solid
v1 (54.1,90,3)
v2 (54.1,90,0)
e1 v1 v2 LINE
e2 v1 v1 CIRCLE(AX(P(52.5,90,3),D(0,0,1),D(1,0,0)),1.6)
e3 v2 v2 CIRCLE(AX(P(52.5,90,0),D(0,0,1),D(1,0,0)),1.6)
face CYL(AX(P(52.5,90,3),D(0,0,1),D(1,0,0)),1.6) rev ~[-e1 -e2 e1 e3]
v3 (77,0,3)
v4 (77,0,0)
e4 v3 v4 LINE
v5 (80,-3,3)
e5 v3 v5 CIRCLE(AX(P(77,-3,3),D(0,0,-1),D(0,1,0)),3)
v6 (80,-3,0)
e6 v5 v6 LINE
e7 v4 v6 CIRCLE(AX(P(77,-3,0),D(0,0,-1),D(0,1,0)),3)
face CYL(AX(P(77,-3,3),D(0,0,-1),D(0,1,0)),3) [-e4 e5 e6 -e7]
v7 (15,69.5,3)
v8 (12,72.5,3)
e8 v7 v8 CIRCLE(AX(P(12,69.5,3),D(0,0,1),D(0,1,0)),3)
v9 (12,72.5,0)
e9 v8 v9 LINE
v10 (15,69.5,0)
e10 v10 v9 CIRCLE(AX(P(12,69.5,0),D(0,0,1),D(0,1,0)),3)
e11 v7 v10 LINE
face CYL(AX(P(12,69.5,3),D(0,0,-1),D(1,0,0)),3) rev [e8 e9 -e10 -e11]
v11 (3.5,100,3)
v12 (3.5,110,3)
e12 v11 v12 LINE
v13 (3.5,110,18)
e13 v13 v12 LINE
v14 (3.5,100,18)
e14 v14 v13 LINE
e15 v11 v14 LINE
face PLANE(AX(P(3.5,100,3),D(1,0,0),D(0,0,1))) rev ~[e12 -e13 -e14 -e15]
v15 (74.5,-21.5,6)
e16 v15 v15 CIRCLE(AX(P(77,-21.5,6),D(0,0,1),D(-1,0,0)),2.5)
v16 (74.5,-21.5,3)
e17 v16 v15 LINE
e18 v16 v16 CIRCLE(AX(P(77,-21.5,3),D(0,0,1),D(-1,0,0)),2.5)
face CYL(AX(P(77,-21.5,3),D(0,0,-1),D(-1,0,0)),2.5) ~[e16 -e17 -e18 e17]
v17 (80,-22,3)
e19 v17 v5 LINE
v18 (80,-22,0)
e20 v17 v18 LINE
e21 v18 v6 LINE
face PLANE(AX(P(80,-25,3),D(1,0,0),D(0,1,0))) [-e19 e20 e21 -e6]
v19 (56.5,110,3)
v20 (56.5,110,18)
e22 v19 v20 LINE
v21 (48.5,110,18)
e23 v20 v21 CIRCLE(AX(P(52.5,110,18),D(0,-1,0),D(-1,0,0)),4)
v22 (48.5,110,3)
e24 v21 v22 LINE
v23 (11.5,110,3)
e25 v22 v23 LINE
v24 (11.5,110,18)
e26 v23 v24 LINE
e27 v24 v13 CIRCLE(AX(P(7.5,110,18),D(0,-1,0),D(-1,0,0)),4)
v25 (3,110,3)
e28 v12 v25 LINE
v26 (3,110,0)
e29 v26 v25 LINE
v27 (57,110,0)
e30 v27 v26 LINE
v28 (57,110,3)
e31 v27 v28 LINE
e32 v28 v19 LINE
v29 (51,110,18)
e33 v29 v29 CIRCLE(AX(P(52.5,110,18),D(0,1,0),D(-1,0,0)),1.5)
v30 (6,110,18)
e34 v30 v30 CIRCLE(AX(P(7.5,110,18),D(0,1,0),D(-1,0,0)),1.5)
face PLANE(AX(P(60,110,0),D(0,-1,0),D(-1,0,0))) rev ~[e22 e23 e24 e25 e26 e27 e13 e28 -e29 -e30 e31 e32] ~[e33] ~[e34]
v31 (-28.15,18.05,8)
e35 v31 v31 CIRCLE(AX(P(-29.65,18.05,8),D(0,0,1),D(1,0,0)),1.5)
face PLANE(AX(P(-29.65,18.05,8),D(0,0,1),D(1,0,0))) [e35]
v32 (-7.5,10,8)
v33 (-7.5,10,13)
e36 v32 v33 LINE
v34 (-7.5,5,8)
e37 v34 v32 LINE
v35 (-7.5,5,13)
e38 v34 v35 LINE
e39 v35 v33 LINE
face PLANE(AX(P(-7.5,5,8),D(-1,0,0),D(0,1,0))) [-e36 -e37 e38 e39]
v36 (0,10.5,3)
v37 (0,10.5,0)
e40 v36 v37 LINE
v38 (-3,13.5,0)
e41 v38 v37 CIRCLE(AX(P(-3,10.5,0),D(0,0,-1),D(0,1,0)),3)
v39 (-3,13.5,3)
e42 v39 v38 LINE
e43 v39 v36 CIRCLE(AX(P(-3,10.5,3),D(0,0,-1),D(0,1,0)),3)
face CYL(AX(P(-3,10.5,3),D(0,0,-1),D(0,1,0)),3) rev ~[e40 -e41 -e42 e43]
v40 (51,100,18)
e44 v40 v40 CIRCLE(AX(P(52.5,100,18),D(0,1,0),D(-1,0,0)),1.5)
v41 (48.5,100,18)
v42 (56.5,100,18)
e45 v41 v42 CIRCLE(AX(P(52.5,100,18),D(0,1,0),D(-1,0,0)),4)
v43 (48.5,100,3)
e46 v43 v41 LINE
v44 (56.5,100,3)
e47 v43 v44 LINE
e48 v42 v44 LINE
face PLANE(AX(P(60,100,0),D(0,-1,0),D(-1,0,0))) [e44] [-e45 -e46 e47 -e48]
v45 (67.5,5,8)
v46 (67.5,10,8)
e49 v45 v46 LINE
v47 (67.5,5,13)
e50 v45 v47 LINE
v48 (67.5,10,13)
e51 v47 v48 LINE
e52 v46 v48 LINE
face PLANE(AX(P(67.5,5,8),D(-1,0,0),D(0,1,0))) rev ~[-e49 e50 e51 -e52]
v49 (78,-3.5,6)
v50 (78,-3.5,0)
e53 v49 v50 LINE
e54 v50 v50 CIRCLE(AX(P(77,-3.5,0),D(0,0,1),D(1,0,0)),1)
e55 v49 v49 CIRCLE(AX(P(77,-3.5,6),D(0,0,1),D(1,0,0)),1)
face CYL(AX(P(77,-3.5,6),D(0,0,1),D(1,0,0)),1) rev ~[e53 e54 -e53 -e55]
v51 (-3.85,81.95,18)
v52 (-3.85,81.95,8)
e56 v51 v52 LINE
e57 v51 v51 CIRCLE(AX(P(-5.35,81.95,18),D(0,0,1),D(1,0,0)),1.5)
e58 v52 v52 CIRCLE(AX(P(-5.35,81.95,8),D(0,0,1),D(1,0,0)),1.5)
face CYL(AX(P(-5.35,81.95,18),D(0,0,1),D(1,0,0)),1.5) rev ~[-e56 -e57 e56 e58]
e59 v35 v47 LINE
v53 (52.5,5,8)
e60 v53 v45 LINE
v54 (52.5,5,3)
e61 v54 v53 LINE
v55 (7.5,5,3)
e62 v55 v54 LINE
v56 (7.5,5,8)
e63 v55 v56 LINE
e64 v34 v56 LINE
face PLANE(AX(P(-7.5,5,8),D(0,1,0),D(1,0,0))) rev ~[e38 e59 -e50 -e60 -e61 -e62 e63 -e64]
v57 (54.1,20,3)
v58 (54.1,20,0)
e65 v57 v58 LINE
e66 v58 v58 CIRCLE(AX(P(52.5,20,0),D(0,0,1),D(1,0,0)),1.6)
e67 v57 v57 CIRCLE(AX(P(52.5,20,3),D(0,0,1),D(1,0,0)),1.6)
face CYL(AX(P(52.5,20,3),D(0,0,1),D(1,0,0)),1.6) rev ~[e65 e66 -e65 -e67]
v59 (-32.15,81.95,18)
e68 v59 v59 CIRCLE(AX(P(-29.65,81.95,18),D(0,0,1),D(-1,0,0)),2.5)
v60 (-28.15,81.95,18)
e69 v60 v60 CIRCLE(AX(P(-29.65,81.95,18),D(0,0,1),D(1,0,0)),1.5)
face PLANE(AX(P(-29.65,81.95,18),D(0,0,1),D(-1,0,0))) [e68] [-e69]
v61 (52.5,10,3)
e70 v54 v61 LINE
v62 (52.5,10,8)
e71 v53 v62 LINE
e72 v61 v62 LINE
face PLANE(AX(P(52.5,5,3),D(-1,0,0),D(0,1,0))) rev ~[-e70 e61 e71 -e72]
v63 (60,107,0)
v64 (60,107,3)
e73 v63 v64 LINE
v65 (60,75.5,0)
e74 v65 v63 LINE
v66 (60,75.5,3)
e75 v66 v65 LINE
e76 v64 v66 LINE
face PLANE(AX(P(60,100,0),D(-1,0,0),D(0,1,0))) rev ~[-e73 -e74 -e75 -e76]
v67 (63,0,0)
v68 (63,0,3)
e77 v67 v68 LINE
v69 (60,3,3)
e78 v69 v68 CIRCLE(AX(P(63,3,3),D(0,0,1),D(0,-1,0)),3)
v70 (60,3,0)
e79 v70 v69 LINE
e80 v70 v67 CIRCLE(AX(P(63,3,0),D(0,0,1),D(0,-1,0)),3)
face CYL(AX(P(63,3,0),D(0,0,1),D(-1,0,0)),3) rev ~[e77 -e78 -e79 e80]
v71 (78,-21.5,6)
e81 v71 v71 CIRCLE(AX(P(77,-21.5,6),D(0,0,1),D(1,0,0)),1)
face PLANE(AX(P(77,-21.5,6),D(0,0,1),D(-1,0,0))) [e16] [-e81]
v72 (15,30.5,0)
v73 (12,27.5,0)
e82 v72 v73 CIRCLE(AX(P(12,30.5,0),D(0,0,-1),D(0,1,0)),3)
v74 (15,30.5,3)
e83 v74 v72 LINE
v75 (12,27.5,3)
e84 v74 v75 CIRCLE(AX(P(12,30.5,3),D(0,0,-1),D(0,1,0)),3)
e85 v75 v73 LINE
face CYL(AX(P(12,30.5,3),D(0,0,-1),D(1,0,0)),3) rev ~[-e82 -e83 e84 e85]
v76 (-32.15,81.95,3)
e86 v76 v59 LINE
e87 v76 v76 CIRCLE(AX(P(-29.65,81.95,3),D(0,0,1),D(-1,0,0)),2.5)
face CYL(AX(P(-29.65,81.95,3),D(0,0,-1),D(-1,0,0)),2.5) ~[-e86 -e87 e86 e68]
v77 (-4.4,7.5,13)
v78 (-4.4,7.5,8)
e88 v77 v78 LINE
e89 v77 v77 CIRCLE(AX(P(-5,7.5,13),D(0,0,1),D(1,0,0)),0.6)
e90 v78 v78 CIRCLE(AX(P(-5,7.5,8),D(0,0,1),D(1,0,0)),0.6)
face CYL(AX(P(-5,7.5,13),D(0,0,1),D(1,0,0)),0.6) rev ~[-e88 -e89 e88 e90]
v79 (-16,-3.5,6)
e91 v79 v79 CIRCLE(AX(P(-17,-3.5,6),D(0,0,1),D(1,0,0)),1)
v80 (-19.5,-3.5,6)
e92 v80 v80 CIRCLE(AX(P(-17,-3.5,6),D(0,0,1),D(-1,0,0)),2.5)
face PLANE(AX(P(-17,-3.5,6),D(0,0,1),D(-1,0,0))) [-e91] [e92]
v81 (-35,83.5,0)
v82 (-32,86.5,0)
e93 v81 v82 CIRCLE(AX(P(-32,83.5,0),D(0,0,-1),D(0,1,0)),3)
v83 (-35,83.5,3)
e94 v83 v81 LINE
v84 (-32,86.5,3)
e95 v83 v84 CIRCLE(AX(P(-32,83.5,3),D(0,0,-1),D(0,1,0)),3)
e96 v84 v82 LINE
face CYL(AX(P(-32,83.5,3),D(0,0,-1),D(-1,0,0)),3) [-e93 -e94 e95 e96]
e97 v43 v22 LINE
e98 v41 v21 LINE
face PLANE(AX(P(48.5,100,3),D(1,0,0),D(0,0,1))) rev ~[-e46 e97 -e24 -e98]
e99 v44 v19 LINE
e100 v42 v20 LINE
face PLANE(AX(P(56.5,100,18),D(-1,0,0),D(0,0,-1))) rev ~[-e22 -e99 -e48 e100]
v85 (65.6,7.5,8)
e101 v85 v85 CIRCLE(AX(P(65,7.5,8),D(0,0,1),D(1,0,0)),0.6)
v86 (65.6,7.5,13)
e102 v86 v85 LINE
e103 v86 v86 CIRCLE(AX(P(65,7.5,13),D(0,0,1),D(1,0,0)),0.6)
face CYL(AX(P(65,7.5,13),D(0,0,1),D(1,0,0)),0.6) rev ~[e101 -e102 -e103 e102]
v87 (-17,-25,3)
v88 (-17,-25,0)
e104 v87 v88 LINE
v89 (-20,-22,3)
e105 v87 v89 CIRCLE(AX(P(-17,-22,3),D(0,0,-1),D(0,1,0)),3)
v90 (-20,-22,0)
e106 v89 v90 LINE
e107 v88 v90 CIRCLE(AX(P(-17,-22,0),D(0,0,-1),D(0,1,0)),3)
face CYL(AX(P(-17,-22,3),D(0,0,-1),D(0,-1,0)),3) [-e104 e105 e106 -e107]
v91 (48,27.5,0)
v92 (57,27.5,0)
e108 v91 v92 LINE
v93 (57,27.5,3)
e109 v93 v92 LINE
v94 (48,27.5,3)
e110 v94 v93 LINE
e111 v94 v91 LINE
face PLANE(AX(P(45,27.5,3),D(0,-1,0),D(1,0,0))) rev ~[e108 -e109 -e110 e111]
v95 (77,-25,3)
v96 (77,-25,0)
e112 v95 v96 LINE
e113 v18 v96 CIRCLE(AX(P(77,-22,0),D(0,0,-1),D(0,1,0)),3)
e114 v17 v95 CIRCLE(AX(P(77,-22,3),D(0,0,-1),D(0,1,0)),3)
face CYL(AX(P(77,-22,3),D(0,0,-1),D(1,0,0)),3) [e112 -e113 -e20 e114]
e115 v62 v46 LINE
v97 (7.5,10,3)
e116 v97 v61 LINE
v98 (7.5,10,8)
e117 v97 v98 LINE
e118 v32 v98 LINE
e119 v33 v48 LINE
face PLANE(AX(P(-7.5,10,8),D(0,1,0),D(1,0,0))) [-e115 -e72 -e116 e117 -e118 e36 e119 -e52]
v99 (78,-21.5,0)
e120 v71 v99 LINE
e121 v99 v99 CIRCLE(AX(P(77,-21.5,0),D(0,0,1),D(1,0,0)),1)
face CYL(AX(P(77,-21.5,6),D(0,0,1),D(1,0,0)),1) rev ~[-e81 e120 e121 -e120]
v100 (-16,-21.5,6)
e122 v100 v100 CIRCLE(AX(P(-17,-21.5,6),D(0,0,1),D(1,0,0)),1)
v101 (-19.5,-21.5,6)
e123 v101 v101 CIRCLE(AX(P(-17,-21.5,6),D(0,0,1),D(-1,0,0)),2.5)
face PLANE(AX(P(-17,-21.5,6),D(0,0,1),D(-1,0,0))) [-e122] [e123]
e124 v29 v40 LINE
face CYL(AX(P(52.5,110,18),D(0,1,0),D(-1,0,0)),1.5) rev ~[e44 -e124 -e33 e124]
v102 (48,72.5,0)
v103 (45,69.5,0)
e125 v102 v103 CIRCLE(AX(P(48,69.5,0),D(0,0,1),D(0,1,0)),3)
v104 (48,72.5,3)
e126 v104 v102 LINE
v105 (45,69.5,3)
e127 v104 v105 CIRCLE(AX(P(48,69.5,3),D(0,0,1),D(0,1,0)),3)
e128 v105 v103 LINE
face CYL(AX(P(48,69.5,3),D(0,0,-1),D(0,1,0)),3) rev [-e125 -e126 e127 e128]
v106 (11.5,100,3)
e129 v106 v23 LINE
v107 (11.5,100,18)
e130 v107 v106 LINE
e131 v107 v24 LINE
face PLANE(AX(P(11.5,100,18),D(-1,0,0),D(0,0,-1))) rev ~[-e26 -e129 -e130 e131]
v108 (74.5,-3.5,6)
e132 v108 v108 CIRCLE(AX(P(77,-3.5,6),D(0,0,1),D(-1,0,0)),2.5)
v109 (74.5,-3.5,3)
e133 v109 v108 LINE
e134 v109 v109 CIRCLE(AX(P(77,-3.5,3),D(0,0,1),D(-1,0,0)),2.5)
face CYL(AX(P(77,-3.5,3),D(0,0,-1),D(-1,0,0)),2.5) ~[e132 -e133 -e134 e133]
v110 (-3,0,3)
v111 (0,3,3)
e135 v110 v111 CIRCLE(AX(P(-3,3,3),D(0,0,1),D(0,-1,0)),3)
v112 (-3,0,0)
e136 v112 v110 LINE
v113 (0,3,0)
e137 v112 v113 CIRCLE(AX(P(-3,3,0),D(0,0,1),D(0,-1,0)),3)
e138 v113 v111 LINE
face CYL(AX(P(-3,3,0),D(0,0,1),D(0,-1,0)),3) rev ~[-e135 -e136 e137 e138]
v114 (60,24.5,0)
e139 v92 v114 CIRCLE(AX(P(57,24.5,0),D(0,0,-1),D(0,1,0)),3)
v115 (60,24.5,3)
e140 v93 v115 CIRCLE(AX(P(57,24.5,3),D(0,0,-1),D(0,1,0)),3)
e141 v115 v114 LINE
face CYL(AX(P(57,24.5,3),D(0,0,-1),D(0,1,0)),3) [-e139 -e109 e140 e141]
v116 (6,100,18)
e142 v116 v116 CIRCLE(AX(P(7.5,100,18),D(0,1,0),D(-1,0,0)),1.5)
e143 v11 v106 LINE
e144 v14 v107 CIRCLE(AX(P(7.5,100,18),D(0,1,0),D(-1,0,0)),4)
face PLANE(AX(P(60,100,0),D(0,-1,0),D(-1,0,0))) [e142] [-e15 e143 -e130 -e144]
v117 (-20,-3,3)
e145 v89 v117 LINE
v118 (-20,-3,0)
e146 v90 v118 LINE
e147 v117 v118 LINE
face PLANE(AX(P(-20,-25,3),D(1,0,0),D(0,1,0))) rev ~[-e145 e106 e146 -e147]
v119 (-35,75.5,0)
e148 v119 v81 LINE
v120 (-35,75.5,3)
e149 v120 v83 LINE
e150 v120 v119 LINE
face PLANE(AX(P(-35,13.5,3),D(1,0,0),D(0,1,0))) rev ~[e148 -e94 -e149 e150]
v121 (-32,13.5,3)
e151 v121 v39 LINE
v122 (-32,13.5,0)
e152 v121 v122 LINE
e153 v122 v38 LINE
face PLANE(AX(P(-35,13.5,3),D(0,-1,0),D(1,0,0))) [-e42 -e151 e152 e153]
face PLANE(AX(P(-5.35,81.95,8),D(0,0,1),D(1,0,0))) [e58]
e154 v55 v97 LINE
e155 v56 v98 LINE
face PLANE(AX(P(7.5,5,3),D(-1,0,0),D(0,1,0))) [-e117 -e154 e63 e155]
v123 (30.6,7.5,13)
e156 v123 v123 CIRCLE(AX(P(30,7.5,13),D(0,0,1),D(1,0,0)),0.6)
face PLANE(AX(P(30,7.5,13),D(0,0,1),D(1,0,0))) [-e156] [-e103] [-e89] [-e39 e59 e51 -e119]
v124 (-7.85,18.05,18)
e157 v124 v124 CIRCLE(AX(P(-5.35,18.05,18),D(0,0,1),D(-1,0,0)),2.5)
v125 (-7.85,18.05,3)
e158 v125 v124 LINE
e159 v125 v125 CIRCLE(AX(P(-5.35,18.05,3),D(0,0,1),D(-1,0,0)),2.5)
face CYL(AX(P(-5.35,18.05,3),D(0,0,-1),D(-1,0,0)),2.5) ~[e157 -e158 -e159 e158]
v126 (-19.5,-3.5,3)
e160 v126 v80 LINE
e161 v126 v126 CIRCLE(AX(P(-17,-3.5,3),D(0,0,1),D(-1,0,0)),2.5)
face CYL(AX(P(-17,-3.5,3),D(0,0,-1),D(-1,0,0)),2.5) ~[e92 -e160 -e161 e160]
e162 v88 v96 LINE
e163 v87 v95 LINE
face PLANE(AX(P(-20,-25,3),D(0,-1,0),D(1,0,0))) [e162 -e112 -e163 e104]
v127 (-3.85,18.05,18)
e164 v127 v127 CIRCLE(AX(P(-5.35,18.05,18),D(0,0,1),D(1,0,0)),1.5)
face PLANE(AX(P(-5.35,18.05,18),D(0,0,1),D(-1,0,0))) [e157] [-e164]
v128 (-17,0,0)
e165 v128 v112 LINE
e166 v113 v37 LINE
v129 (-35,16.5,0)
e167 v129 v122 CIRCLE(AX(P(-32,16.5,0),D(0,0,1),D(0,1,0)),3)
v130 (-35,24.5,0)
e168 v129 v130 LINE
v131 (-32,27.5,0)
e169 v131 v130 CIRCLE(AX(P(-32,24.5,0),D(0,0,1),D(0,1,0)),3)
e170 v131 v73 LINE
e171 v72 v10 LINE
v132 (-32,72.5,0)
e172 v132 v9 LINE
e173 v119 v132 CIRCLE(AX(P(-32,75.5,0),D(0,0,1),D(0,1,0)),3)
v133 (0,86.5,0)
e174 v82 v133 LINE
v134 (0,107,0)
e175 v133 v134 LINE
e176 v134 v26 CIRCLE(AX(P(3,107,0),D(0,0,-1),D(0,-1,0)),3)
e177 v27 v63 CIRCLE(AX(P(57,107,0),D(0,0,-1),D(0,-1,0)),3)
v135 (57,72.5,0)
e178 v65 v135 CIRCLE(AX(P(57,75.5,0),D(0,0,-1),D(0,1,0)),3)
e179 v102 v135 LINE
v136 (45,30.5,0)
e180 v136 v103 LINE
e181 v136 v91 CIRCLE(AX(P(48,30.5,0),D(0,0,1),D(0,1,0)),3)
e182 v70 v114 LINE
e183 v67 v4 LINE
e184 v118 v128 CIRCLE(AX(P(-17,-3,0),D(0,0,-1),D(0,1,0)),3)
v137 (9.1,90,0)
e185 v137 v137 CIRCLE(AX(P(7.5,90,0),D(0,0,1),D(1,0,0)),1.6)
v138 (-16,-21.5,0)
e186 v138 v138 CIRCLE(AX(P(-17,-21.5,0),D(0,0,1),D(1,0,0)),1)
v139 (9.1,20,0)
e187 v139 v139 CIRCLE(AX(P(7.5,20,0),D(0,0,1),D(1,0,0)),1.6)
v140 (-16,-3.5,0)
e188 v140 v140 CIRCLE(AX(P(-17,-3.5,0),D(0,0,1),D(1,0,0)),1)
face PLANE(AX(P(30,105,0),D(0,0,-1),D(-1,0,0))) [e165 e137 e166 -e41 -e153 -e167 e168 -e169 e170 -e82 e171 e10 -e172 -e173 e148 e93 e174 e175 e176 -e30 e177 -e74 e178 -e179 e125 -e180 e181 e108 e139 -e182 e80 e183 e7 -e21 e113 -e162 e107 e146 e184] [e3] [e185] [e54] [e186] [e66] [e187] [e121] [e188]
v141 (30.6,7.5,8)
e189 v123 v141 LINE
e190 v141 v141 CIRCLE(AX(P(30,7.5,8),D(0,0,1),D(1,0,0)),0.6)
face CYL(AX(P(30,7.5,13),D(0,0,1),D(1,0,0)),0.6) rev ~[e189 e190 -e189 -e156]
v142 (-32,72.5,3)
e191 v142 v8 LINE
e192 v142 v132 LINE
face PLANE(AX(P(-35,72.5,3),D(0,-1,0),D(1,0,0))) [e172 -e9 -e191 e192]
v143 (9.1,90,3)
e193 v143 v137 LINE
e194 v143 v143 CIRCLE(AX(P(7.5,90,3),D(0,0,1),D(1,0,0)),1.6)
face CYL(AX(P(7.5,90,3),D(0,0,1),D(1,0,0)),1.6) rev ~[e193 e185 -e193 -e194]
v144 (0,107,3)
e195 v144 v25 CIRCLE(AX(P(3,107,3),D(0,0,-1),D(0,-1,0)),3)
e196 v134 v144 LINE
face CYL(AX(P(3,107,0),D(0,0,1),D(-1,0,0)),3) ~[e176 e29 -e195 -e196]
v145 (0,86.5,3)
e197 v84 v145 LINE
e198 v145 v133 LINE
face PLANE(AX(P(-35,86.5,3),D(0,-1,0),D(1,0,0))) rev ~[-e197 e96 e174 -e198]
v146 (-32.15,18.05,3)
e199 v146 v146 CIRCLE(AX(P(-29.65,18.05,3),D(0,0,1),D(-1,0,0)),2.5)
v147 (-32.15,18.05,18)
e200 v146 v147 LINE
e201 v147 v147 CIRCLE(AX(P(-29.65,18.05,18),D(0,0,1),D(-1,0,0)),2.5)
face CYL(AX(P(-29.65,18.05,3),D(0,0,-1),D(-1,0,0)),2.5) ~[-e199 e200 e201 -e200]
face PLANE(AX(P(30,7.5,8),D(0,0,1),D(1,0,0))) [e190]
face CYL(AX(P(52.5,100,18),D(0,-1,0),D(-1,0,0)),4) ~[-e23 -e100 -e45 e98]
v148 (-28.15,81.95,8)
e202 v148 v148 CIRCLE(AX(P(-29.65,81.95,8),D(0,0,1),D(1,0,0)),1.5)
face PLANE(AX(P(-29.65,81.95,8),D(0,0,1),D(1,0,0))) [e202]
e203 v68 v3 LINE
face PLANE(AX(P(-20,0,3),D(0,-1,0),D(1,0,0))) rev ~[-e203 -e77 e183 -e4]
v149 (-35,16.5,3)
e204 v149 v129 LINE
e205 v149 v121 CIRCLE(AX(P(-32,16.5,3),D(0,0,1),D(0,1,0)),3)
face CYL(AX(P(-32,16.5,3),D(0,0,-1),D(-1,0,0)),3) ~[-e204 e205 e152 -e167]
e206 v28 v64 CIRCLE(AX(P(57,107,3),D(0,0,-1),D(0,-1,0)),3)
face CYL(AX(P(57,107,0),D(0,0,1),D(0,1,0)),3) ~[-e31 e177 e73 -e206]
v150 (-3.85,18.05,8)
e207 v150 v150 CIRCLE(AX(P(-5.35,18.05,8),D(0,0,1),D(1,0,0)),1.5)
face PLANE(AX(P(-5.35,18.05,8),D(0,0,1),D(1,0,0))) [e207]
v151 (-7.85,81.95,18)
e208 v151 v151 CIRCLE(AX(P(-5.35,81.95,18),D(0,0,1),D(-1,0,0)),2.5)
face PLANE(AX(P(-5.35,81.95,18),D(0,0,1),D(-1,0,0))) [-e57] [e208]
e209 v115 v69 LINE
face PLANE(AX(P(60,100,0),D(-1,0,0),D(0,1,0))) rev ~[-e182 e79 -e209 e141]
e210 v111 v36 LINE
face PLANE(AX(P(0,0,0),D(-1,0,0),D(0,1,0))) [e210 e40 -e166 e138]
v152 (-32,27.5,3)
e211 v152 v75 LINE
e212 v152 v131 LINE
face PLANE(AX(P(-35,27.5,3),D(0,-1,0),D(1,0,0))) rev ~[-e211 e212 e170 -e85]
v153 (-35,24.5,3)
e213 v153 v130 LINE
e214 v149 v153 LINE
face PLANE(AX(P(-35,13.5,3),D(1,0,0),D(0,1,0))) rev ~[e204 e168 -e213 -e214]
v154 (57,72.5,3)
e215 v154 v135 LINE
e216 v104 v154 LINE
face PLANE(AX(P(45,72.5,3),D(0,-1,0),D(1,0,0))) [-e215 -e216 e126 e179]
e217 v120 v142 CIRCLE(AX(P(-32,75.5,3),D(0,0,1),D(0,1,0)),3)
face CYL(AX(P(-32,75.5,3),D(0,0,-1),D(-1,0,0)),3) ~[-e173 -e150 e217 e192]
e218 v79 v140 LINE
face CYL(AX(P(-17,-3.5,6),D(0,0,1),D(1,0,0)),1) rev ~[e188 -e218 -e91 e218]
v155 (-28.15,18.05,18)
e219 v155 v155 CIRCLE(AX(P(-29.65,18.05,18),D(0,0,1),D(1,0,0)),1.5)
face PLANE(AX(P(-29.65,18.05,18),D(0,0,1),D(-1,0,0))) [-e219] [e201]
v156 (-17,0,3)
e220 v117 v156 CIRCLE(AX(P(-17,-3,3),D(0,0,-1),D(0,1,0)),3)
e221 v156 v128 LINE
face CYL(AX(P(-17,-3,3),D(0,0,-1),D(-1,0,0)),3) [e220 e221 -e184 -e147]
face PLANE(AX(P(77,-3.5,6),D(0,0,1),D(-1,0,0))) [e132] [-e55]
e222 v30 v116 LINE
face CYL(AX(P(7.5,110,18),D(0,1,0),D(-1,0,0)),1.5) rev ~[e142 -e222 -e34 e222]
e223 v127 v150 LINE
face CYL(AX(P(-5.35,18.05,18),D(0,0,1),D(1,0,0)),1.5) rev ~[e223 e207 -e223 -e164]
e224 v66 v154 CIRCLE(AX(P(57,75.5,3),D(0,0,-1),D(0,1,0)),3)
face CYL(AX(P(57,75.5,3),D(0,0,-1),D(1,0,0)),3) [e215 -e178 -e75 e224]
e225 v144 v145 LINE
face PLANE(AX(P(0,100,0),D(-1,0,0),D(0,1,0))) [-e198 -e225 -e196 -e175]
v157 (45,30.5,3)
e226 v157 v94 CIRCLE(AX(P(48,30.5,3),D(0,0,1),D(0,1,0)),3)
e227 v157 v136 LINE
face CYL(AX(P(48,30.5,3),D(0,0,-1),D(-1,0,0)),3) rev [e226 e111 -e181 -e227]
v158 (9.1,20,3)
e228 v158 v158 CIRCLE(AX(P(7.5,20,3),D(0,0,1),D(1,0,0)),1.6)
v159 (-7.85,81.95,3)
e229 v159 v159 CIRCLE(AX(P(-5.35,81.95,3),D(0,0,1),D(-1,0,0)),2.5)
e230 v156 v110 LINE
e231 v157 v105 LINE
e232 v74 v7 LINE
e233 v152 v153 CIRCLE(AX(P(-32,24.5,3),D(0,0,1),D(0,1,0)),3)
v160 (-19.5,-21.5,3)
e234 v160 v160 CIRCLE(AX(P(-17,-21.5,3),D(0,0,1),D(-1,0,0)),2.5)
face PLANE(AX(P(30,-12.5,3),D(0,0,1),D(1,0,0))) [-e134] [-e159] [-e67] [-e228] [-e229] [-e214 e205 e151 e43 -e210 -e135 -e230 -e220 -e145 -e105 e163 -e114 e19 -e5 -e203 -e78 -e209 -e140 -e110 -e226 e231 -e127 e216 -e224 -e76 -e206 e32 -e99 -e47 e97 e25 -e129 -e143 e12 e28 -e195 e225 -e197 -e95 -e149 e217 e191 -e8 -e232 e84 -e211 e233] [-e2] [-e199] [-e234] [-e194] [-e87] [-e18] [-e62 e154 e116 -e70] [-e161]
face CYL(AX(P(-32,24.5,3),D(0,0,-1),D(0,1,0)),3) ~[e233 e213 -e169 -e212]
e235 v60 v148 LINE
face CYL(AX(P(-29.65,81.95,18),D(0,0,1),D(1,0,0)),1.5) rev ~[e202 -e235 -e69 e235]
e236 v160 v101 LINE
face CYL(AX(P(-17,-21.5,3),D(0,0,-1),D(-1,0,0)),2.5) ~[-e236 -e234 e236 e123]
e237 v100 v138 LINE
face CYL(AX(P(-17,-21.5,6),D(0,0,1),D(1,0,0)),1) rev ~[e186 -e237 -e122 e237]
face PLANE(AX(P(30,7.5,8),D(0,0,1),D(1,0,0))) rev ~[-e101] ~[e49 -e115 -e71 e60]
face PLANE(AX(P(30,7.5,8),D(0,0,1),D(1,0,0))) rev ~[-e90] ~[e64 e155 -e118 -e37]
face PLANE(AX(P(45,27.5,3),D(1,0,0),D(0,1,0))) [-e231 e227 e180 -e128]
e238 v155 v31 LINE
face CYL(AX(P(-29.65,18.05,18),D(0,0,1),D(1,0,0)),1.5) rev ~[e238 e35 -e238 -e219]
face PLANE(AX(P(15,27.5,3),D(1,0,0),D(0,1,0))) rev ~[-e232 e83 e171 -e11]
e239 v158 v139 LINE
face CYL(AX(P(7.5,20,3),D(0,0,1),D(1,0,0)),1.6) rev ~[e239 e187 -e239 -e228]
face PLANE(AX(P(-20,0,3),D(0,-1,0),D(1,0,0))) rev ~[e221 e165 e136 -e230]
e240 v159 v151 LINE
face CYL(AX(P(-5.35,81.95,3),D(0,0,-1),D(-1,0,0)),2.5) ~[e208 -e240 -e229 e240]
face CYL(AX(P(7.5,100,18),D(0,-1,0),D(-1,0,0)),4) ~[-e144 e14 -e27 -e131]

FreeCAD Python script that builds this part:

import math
import FreeCAD as App
import Part
import Sketcher


def edges_at(feature, points):
    """Names of the edges that pass closest to the given points."""
    edges = feature.Shape.Edges
    near = lambda p: min(range(len(edges)), key=lambda i: edges[i].distToShape(Part.Vertex(*p))[0])
    return sorted({f"Edge{near(p) + 1}" for p in points})


def add_polygon(sketch, points):
    """Adds a closed chain of lines whose ends are joined by coincident constraints."""
    first, n = sketch.GeometryCount, len(points)
    for a, b in zip(points, points[1:] + points[:1]):
        sketch.addGeometry(Part.LineSegment(App.Vector(*a, 0), App.Vector(*b, 0)), False)
    for i in range(n):
        sketch.addConstraint(Sketcher.Constraint("Coincident", first + i, 2, first + (i + 1) % n, 1))

doc = App.newDocument("Part")
params = doc.addObject("Spreadsheet::Sheet", "Params")
for row, (alias, value) in enumerate([
    ("sketch1_width", "60 mm"),
    ("sketch1_height", "100 mm"),
    ("pad1_length", "3 mm"),
    ("sketch2_diameter", "3.2 mm"),
    ("sketch3_diameter", "3.2 mm"),
    ("sketch4_diameter", "3.2 mm"),
    ("sketch5_diameter", "3.2 mm"),
    ("sketch6_width", "100 mm"),
    ("sketch6_height", "25 mm"),
    ("pad2_length", "3 mm"),
    ("sketch7_diameter", "5 mm"),
    ("pad3_length", "3 mm"),
    ("sketch8_diameter", "2 mm"),
    ("sketch9_width", "45 mm"),
    ("sketch9_height", "5 mm"),
    ("pad4_length", "5 mm"),
    ("sketch10_width", "75 mm"),
    ("sketch10_height", "5 mm"),
    ("pad5_length", "5 mm"),
    ("sketch11_diameter", "1.2 mm"),
    ("pocket6_length", "5 mm"),
    ("sketch12_width", "35 mm"),
    ("sketch12_height", "73 mm"),
    ("pad6_length", "3 mm"),
    ("sketch13_diameter", "5 mm"),
    ("pad7_length", "15 mm"),
    ("sketch14_diameter", "3 mm"),
    ("pocket7_length", "10 mm"),
    ("sketch15_width", "60 mm"),
    ("sketch15_height", "10 mm"),
    ("pad8_length", "28 mm"),
    ("sketch16_radius", "4 mm"),
    ("sketch16_width", "37 mm"),
    ("sketch16_width2", "60 mm"),
    ("sketch16_height", "15 mm"),
    ("sketch16_height2", "25 mm"),
    ("sketch17_diameter", "3 mm"),
    ("sketch18_diameter", "3 mm"),
    ("sketch19_width", "50 mm"),
    ("sketch19_height", "45 mm"),
    ("sketch20_width", "15 mm"),
    ("sketch20_height", "45 mm"),
    ("fillet_radius", "3 mm"),
    ("fillet2_radius", "3 mm"),
    ("fillet3_radius", "3 mm"),
    ("fillet4_radius", "3 mm"),
    ("fillet5_radius", "3 mm"),
    ("fillet6_radius", "3 mm"),
], start=1):
    params.set(f"A{row}", alias)
    params.set(f"B{row}", "=" + value)
    params.setAlias(f"B{row}", alias)

body = doc.addObject("PartDesign::Body", "Body")

# Sketch on XY plane
sketch1 = body.newObject("Sketcher::SketchObject", "Sketch")
sketch1.AttachmentSupport = (doc.getObject("XY_Plane"), [""])
sketch1.MapMode = "FlatFace"
add_polygon(sketch1, [(0, 100), (0, 0), (60, 0), (60, 100)])  # lines 0-3
sketch1.addConstraint([
    Sketcher.Constraint("Vertical", 0),
    Sketcher.Constraint("Horizontal", 1),
    Sketcher.Constraint("Vertical", 2),
    Sketcher.Constraint("Horizontal", 3),
    Sketcher.Constraint("Coincident", 0, 2, -1, 1),
    Sketcher.Constraint("DistanceX", 1, 1, 1, 2, 60.0),
    Sketcher.Constraint("DistanceY", 0, 2, 0, 1, 100.0),
])
sketch1.setExpression("Constraints[9]", "Params.sketch1_width")
sketch1.setExpression("Constraints[10]", "Params.sketch1_height")
pad1 = body.newObject("PartDesign::Pad", "Pad")
pad1.Profile = sketch1
pad1.setExpression("Length", "Params.pad1_length")

# Sketch on XY plane
sketch2 = body.newObject("Sketcher::SketchObject", "Sketch001")
sketch2.AttachmentSupport = (doc.getObject("XY_Plane"), [""])
sketch2.MapMode = "FlatFace"
sketch2.AttachmentOffset = App.Placement(App.Vector(0, 0, 3), App.Rotation())
sketch2.addGeometry(Part.Circle(App.Vector(7.5, 90, 0), App.Vector(0, 0, 1), 1.6), False)
sketch2.addConstraint([
    Sketcher.Constraint("Diameter", 0, 3.2),
    Sketcher.Constraint("DistanceY", -1, 1, 0, 3, 90.0),
    Sketcher.Constraint("DistanceX", -1, 1, 0, 3, 7.5),
])
sketch2.setExpression("Constraints[0]", "Params.sketch2_diameter")
pocket1 = body.newObject("PartDesign::Pocket", "Pocket")
pocket1.Profile = sketch2
pocket1.Type = "UpToFirst"

# Sketch on XY plane
sketch3 = body.newObject("Sketcher::SketchObject", "Sketch002")
sketch3.AttachmentSupport = (doc.getObject("XY_Plane"), [""])
sketch3.MapMode = "FlatFace"
sketch3.AttachmentOffset = App.Placement(App.Vector(0, 0, 3), App.Rotation())
sketch3.addGeometry(Part.Circle(App.Vector(52.5, 90, 0), App.Vector(0, 0, 1), 1.6), False)
sketch3.addConstraint([
    Sketcher.Constraint("Diameter", 0, 3.2),
    Sketcher.Constraint("DistanceY", -1, 1, 0, 3, 90.0),
    Sketcher.Constraint("DistanceX", -1, 1, 0, 3, 52.5),
])
sketch3.setExpression("Constraints[0]", "Params.sketch3_diameter")
pocket2 = body.newObject("PartDesign::Pocket", "Pocket001")
pocket2.Profile = sketch3
pocket2.Type = "UpToFirst"

# Sketch on XY plane
sketch4 = body.newObject("Sketcher::SketchObject", "Sketch003")
sketch4.AttachmentSupport = (doc.getObject("XY_Plane"), [""])
sketch4.MapMode = "FlatFace"
sketch4.AttachmentOffset = App.Placement(App.Vector(0, 0, 3), App.Rotation())
sketch4.addGeometry(Part.Circle(App.Vector(52.5, 20, 0), App.Vector(0, 0, 1), 1.6), False)
sketch4.addConstraint([
    Sketcher.Constraint("Diameter", 0, 3.2),
    Sketcher.Constraint("DistanceY", -1, 1, 0, 3, 20.0),
    Sketcher.Constraint("DistanceX", -1, 1, 0, 3, 52.5),
])
sketch4.setExpression("Constraints[0]", "Params.sketch4_diameter")
pocket3 = body.newObject("PartDesign::Pocket", "Pocket002")
pocket3.Profile = sketch4
pocket3.Type = "UpToFirst"

# Sketch on XY plane
sketch5 = body.newObject("Sketcher::SketchObject", "Sketch004")
sketch5.AttachmentSupport = (doc.getObject("XY_Plane"), [""])
sketch5.MapMode = "FlatFace"
sketch5.AttachmentOffset = App.Placement(App.Vector(0, 0, 3), App.Rotation())
sketch5.addGeometry(Part.Circle(App.Vector(7.5, 20, 0), App.Vector(0, 0, 1), 1.6), False)
sketch5.addConstraint([
    Sketcher.Constraint("Diameter", 0, 3.2),
    Sketcher.Constraint("DistanceY", -1, 1, 0, 3, 20.0),
    Sketcher.Constraint("DistanceX", -1, 1, 0, 3, 7.5),
])
sketch5.setExpression("Constraints[0]", "Params.sketch5_diameter")
pocket4 = body.newObject("PartDesign::Pocket", "Pocket003")
pocket4.Profile = sketch5
pocket4.Type = "UpToFirst"

# Sketch on XY plane
sketch6 = body.newObject("Sketcher::SketchObject", "Sketch005")
sketch6.AttachmentSupport = (doc.getObject("XY_Plane"), [""])
sketch6.MapMode = "FlatFace"
sketch6.AttachmentOffset = App.Placement(App.Vector(0, 0, 3), App.Rotation())
add_polygon(sketch6, [(-20, 0), (-20, -25), (80, -25), (80, 0)])  # lines 0-3
sketch6.addConstraint([
    Sketcher.Constraint("Vertical", 0),
    Sketcher.Constraint("Horizontal", 1),
    Sketcher.Constraint("Vertical", 2),
    Sketcher.Constraint("Horizontal", 3),
    Sketcher.Constraint("PointOnObject", 2, 2, -1),
    Sketcher.Constraint("DistanceX", 1, 1, 1, 2, 100.0),
    Sketcher.Constraint("DistanceY", 0, 2, 0, 1, 25.0),
    Sketcher.Constraint("DistanceX", 0, 2, -1, 1, 20.0),
])
sketch6.setExpression("Constraints[9]", "Params.sketch6_width")
sketch6.setExpression("Constraints[10]", "Params.sketch6_height")
pad2 = body.newObject("PartDesign::Pad", "Pad001")
pad2.Profile = sketch6
pad2.setExpression("Length", "Params.pad2_length")
pad2.Reversed = True

# Sketch on XY plane
sketch7 = body.newObject("Sketcher::SketchObject", "Sketch006")
sketch7.AttachmentSupport = (doc.getObject("XY_Plane"), [""])
sketch7.MapMode = "FlatFace"
sketch7.AttachmentOffset = App.Placement(App.Vector(0, 0, 3), App.Rotation())
sketch7.addGeometry([
    Part.Circle(App.Vector(-17, -3.5, 0), App.Vector(0, 0, 1), 2.5),
    Part.Circle(App.Vector(-17, -21.5, 0), App.Vector(0, 0, 1), 2.5),
    Part.Circle(App.Vector(77, -21.5, 0), App.Vector(0, 0, 1), 2.5),
    Part.Circle(App.Vector(77, -3.5, 0), App.Vector(0, 0, 1), 2.5),
], False)
sketch7.addConstraint([
    Sketcher.Constraint("Equal", 0, 1),
    Sketcher.Constraint("Equal", 1, 2),
    Sketcher.Constraint("Equal", 2, 3),
    Sketcher.Constraint("Horizontal", 1, 3, 2, 3),
    Sketcher.Constraint("Horizontal", 0, 3, 3, 3),
    Sketcher.Constraint("Vertical", 0, 3, 1, 3),
    Sketcher.Constraint("Vertical", 2, 3, 3, 3),
    Sketcher.Constraint("Diameter", 0, 5.0),
    Sketcher.Constraint("DistanceX", 0, 3, -1, 1, 17.0),
    Sketcher.Constraint("DistanceX", -1, 1, 2, 3, 77.0),
    Sketcher.Constraint("DistanceY", 1, 3, 0, 3, 18.0),
    Sketcher.Constraint("DistanceY", 0, 3, -1, 1, 3.5),
])
sketch7.setExpression("Constraints[7]", "Params.sketch7_diameter")
pad3 = body.newObject("PartDesign::Pad", "Pad002")
pad3.Profile = sketch7
pad3.setExpression("Length", "Params.pad3_length")

# Sketch on XY plane
sketch8 = body.newObject("Sketcher::SketchObject", "Sketch007")
sketch8.AttachmentSupport = (doc.getObject("XY_Plane"), [""])
sketch8.MapMode = "FlatFace"
sketch8.AttachmentOffset = App.Placement(App.Vector(0, 0, 6), App.Rotation())
sketch8.addGeometry([
    Part.Circle(App.Vector(-17, -3.5, 0), App.Vector(0, 0, 1), 1),
    Part.Circle(App.Vector(-17, -21.5, 0), App.Vector(0, 0, 1), 1),
    Part.Circle(App.Vector(77, -21.5, 0), App.Vector(0, 0, 1), 1),
    Part.Circle(App.Vector(77, -3.5, 0), App.Vector(0, 0, 1), 1),
], False)
sketch8.addConstraint([
    Sketcher.Constraint("Equal", 0, 1),
    Sketcher.Constraint("Equal", 1, 2),
    Sketcher.Constraint("Equal", 2, 3),
    Sketcher.Constraint("Horizontal", 1, 3, 2, 3),
    Sketcher.Constraint("Horizontal", 0, 3, 3, 3),
    Sketcher.Constraint("Vertical", 0, 3, 1, 3),
    Sketcher.Constraint("Vertical", 2, 3, 3, 3),
    Sketcher.Constraint("Diameter", 0, 2.0),
    Sketcher.Constraint("DistanceX", 0, 3, -1, 1, 17.0),
    Sketcher.Constraint("DistanceX", -1, 1, 2, 3, 77.0),
    Sketcher.Constraint("DistanceY", 1, 3, 0, 3, 18.0),
    Sketcher.Constraint("DistanceY", 0, 3, -1, 1, 3.5),
])
sketch8.setExpression("Constraints[7]", "Params.sketch8_diameter")
pocket5 = body.newObject("PartDesign::Pocket", "Pocket004")
pocket5.Profile = sketch8
pocket5.Type = "ThroughAll"

# Sketch on XY plane
sketch9 = body.newObject("Sketcher::SketchObject", "Sketch008")
sketch9.AttachmentSupport = (doc.getObject("XY_Plane"), [""])
sketch9.MapMode = "FlatFace"
sketch9.AttachmentOffset = App.Placement(App.Vector(0, 0, 3), App.Rotation())
add_polygon(sketch9, [(7.5, 10), (7.5, 5), (52.5, 5), (52.5, 10)])  # lines 0-3
sketch9.addConstraint([
    Sketcher.Constraint("Vertical", 0),
    Sketcher.Constraint("Horizontal", 1),
    Sketcher.Constraint("Vertical", 2),
    Sketcher.Constraint("Horizontal", 3),
    Sketcher.Constraint("DistanceX", 1, 1, 1, 2, 45.0),
    Sketcher.Constraint("DistanceY", 0, 2, 0, 1, 5.0),
    Sketcher.Constraint("DistanceY", -1, 1, 0, 2, 5.0),
    Sketcher.Constraint("DistanceX", -1, 1, 0, 2, 7.5),
])
sketch9.setExpression("Constraints[8]", "Params.sketch9_width")
sketch9.setExpression("Constraints[9]", "Params.sketch9_height")
pad4 = body.newObject("PartDesign::Pad", "Pad003")
pad4.Profile = sketch9
pad4.setExpression("Length", "Params.pad4_length")

# Sketch on XY plane
sketch10 = body.newObject("Sketcher::SketchObject", "Sketch009")
sketch10.AttachmentSupport = (doc.getObject("XY_Plane"), [""])
sketch10.MapMode = "FlatFace"
sketch10.AttachmentOffset = App.Placement(App.Vector(0, 0, 8), App.Rotation())
add_polygon(sketch10, [(-7.5, 10), (-7.5, 5), (67.5, 5), (67.5, 10)])  # lines 0-3
sketch10.addConstraint([
    Sketcher.Constraint("Vertical", 0),
    Sketcher.Constraint("Horizontal", 1),
    Sketcher.Constraint("Vertical", 2),
    Sketcher.Constraint("Horizontal", 3),
    Sketcher.Constraint("DistanceX", 1, 1, 1, 2, 75.0),
    Sketcher.Constraint("DistanceY", 0, 2, 0, 1, 5.0),
    Sketcher.Constraint("DistanceY", -1, 1, 0, 2, 5.0),
    Sketcher.Constraint("DistanceX", 0, 2, -1, 1, 7.5),
])
sketch10.setExpression("Constraints[8]", "Params.sketch10_width")
sketch10.setExpression("Constraints[9]", "Params.sketch10_height")
pad5 = body.newObject("PartDesign::Pad", "Pad004")
pad5.Profile = sketch10
pad5.setExpression("Length", "Params.pad5_length")

# Sketch on XY plane
sketch11 = body.newObject("Sketcher::SketchObject", "Sketch010")
sketch11.AttachmentSupport = (doc.getObject("XY_Plane"), [""])
sketch11.MapMode = "FlatFace"
sketch11.AttachmentOffset = App.Placement(App.Vector(0, 0, 13), App.Rotation())
sketch11.addGeometry([
    Part.Circle(App.Vector(-5, 7.5, 0), App.Vector(0, 0, 1), 0.6),
    Part.Circle(App.Vector(30, 7.5, 0), App.Vector(0, 0, 1), 0.6),
    Part.Circle(App.Vector(65, 7.5, 0), App.Vector(0, 0, 1), 0.6),
], False)
sketch11.addConstraint([
    Sketcher.Constraint("Equal", 0, 1),
    Sketcher.Constraint("Equal", 1, 2),
    Sketcher.Constraint("Horizontal", 0, 3, 1, 3),
    Sketcher.Constraint("Horizontal", 1, 3, 2, 3),
    Sketcher.Constraint("Diameter", 0, 1.2),
    Sketcher.Constraint("DistanceX", 0, 3, -1, 1, 5.0),
    Sketcher.Constraint("DistanceX", -1, 1, 1, 3, 30.0),
    Sketcher.Constraint("DistanceX", -1, 1, 2, 3, 65.0),
    Sketcher.Constraint("DistanceY", -1, 1, 0, 3, 7.5),
])
sketch11.setExpression("Constraints[4]", "Params.sketch11_diameter")
pocket6 = body.newObject("PartDesign::Pocket", "Pocket005")
pocket6.Profile = sketch11
pocket6.setExpression("Length", "Params.pocket6_length")

# Sketch on XY plane
sketch12 = body.newObject("Sketcher::SketchObject", "Sketch011")
sketch12.AttachmentSupport = (doc.getObject("XY_Plane"), [""])
sketch12.MapMode = "FlatFace"
sketch12.AttachmentOffset = App.Placement(App.Vector(0, 0, 3), App.Rotation())
add_polygon(sketch12, [(-35, 86.5), (-35, 13.5), (0, 13.5), (0, 86.5)])  # lines 0-3
sketch12.addConstraint([
    Sketcher.Constraint("Vertical", 0),
    Sketcher.Constraint("Horizontal", 1),
    Sketcher.Constraint("Vertical", 2),
    Sketcher.Constraint("Horizontal", 3),
    Sketcher.Constraint("PointOnObject", 1, 2, -2),
    Sketcher.Constraint("DistanceX", 1, 1, 1, 2, 35.0),
    Sketcher.Constraint("DistanceY", 0, 2, 0, 1, 73.0),
    Sketcher.Constraint("DistanceY", -1, 1, 0, 2, 13.5),
])
sketch12.setExpression("Constraints[9]", "Params.sketch12_width")
sketch12.setExpression("Constraints[10]", "Params.sketch12_height")
pad6 = body.newObject("PartDesign::Pad", "Pad005")
pad6.Profile = sketch12
pad6.setExpression("Length", "Params.pad6_length")
pad6.Reversed = True

# Sketch on XY plane
sketch13 = body.newObject("Sketcher::SketchObject", "Sketch012")
sketch13.AttachmentSupport = (doc.getObject("XY_Plane"), [""])
sketch13.MapMode = "FlatFace"
sketch13.AttachmentOffset = App.Placement(App.Vector(0, 0, 3), App.Rotation())
sketch13.addGeometry([
    Part.Circle(App.Vector(-29.65, 81.95, 0), App.Vector(0, 0, 1), 2.5),
    Part.Circle(App.Vector(-5.35, 81.95, 0), App.Vector(0, 0, 1), 2.5),
    Part.Circle(App.Vector(-5.35, 18.05, 0), App.Vector(0, 0, 1), 2.5),
    Part.Circle(App.Vector(-29.65, 18.05, 0), App.Vector(0, 0, 1), 2.5),
], False)
sketch13.addConstraint([
    Sketcher.Constraint("Equal", 0, 1),
    Sketcher.Constraint("Equal", 1, 2),
    Sketcher.Constraint("Equal", 2, 3),
    Sketcher.Constraint("Horizontal", 0, 3, 1, 3),
    Sketcher.Constraint("Horizontal", 2, 3, 3, 3),
    Sketcher.Constraint("Vertical", 1, 3, 2, 3),
    Sketcher.Constraint("Vertical", 0, 3, 3, 3),
    Sketcher.Constraint("Diameter", 0, 5.0),
    Sketcher.Constraint("DistanceX", 0, 3, 1, 3, 24.3),
    Sketcher.Constraint("DistanceY", 2, 3, 1, 3, 63.9),
    Sketcher.Constraint("DistanceX", 0, 3, -1, 1, 29.65),
    Sketcher.Constraint("DistanceY", -1, 1, 0, 3, 81.95),
])
sketch13.setExpression("Constraints[7]", "Params.sketch13_diameter")
pad7 = body.newObject("PartDesign::Pad", "Pad006")
pad7.Profile = sketch13
pad7.setExpression("Length", "Params.pad7_length")

# Sketch on XY plane
sketch14 = body.newObject("Sketcher::SketchObject", "Sketch013")
sketch14.AttachmentSupport = (doc.getObject("XY_Plane"), [""])
sketch14.MapMode = "FlatFace"
sketch14.AttachmentOffset = App.Placement(App.Vector(0, 0, 18), App.Rotation())
sketch14.addGeometry([
    Part.Circle(App.Vector(-29.65, 81.95, 0), App.Vector(0, 0, 1), 1.5),
    Part.Circle(App.Vector(-5.35, 81.95, 0), App.Vector(0, 0, 1), 1.5),
    Part.Circle(App.Vector(-5.35, 18.05, 0), App.Vector(0, 0, 1), 1.5),
    Part.Circle(App.Vector(-29.65, 18.05, 0), App.Vector(0, 0, 1), 1.5),
], False)
sketch14.addConstraint([
    Sketcher.Constraint("Equal", 0, 1),
    Sketcher.Constraint("Equal", 1, 2),
    Sketcher.Constraint("Equal", 2, 3),
    Sketcher.Constraint("Horizontal", 0, 3, 1, 3),
    Sketcher.Constraint("Horizontal", 2, 3, 3, 3),
    Sketcher.Constraint("Vertical", 1, 3, 2, 3),
    Sketcher.Constraint("Vertical", 0, 3, 3, 3),
    Sketcher.Constraint("Diameter", 0, 3.0),
    Sketcher.Constraint("DistanceX", 0, 3, 1, 3, 24.3),
    Sketcher.Constraint("DistanceY", 2, 3, 1, 3, 63.9),
    Sketcher.Constraint("DistanceX", 0, 3, -1, 1, 29.65),
    Sketcher.Constraint("DistanceY", -1, 1, 0, 3, 81.95),
])
sketch14.setExpression("Constraints[7]", "Params.sketch14_diameter")
pocket7 = body.newObject("PartDesign::Pocket", "Pocket006")
pocket7.Profile = sketch14
pocket7.setExpression("Length", "Params.pocket7_length")

# Sketch on XY plane
sketch15 = body.newObject("Sketcher::SketchObject", "Sketch014")
sketch15.AttachmentSupport = (doc.getObject("XY_Plane"), [""])
sketch15.MapMode = "FlatFace"
add_polygon(sketch15, [(60, 110), (60, 100), (0, 100), (0, 110)])  # lines 0-3
sketch15.addConstraint([
    Sketcher.Constraint("Vertical", 0),
    Sketcher.Constraint("Horizontal", 1),
    Sketcher.Constraint("Vertical", 2),
    Sketcher.Constraint("Horizontal", 3),
    Sketcher.Constraint("PointOnObject", 1, 2, -2),
    Sketcher.Constraint("DistanceX", 1, 2, 1, 1, 60.0),
    Sketcher.Constraint("DistanceY", 0, 2, 0, 1, 10.0),
    Sketcher.Constraint("DistanceY", -1, 1, 0, 2, 100.0),
])
sketch15.setExpression("Constraints[9]", "Params.sketch15_width")
sketch15.setExpression("Constraints[10]", "Params.sketch15_height")
pad8 = body.newObject("PartDesign::Pad", "Pad007")
pad8.Profile = sketch15
pad8.setExpression("Length", "Params.pad8_length")

# Sketch on XZ plane
sketch16 = body.newObject("Sketcher::SketchObject", "Sketch015")
sketch16.AttachmentSupport = (doc.getObject("XZ_Plane"), [""])
sketch16.MapMode = "FlatFace"
sketch16.AttachmentOffset = App.Placement(App.Vector(0, 0, -100), App.Rotation())
sketch16.addGeometry([
    Part.LineSegment(App.Vector(3.5, 3, 0), App.Vector(3.5, 18, 0)),  # 0
    Part.ArcOfCircle(Part.Circle(App.Vector(7.5, 18, 0), App.Vector(0, 0, 1), 4), math.radians(0), math.radians(180)),  # 1
    Part.LineSegment(App.Vector(11.5, 18, 0), App.Vector(11.5, 3, 0)),  # 2
    Part.LineSegment(App.Vector(11.5, 3, 0), App.Vector(48.5, 3, 0)),  # 3
    Part.LineSegment(App.Vector(48.5, 3, 0), App.Vector(48.5, 18, 0)),  # 4
    Part.ArcOfCircle(Part.Circle(App.Vector(52.5, 18, 0), App.Vector(0, 0, 1), 4), math.radians(0), math.radians(180)),  # 5
    Part.LineSegment(App.Vector(56.5, 18, 0), App.Vector(56.5, 3, 0)),  # 6
    Part.LineSegment(App.Vector(56.5, 3, 0), App.Vector(60, 3, 0)),  # 7
    Part.LineSegment(App.Vector(60, 3, 0), App.Vector(60, 28, 0)),  # 8
    Part.LineSegment(App.Vector(60, 28, 0), App.Vector(0, 28, 0)),  # 9
    Part.LineSegment(App.Vector(0, 28, 0), App.Vector(0, 3, 0)),  # 10
    Part.LineSegment(App.Vector(0, 3, 0), App.Vector(3.5, 3, 0)),  # 11
], False)
sketch16.addConstraint([
    Sketcher.Constraint("Tangent", 0, 2, 1, 2),
    Sketcher.Constraint("Tangent", 1, 1, 2, 1),
    Sketcher.Constraint("Coincident", 2, 2, 3, 1),
    Sketcher.Constraint("Coincident", 3, 2, 4, 1),
    Sketcher.Constraint("Tangent", 4, 2, 5, 2),
    Sketcher.Constraint("Tangent", 5, 1, 6, 1),
    Sketcher.Constraint("Coincident", 6, 2, 7, 1),
    Sketcher.Constraint("Coincident", 7, 2, 8, 1),
    Sketcher.Constraint("Coincident", 8, 2, 9, 1),
    Sketcher.Constraint("Coincident", 9, 2, 10, 1),
    Sketcher.Constraint("Coincident", 10, 2, 11, 1),
    Sketcher.Constraint("Coincident", 11, 2, 0, 1),
    Sketcher.Constraint("Vertical", 0),
    Sketcher.Constraint("Vertical", 2),
    Sketcher.Constraint("Horizontal", 3),
    Sketcher.Constraint("Vertical", 4),
    Sketcher.Constraint("Vertical", 6),
    Sketcher.Constraint("Horizontal", 7),
    Sketcher.Constraint("Vertical", 8),
    Sketcher.Constraint("Horizontal", 9),
    Sketcher.Constraint("Vertical", 10),
    Sketcher.Constraint("Horizontal", 11),
    Sketcher.Constraint("Equal", 1, 5),
    Sketcher.Constraint("PointOnObject", 9, 2, -2),
    Sketcher.Constraint("Horizontal", 1, 3, 5, 3),
    Sketcher.Constraint("Horizontal", 3, 2, 6, 2),
    Sketcher.Constraint("Horizontal", 7, 2, 10, 2),
    Sketcher.Constraint("Equal", 7, 11),
    Sketcher.Constraint("Radius", 1, 4.0),
    Sketcher.Constraint("DistanceX", 3, 1, 3, 2, 37.0),
    Sketcher.Constraint("DistanceX", 9, 2, 9, 1, 60.0),
    Sketcher.Constraint("DistanceY", 0, 1, 0, 2, 15.0),
    Sketcher.Constraint("DistanceY", 8, 1, 8, 2, 25.0),
    Sketcher.Constraint("DistanceY", -1, 1, 1, 3, 18.0),
])
sketch16.setExpression("Constraints[28]", "Params.sketch16_radius")
sketch16.setExpression("Constraints[29]", "Params.sketch16_width")
sketch16.setExpression("Constraints[30]", "Params.sketch16_width2")
sketch16.setExpression("Constraints[31]", "Params.sketch16_height")
sketch16.setExpression("Constraints[32]", "Params.sketch16_height2")
pocket8 = body.newObject("PartDesign::Pocket", "Pocket007")
pocket8.Profile = sketch16
pocket8.Type = "UpToFirst"

# Sketch on XZ plane
sketch17 = body.newObject("Sketcher::SketchObject", "Sketch016")
sketch17.AttachmentSupport = (doc.getObject("XZ_Plane"), [""])
sketch17.MapMode = "FlatFace"
sketch17.AttachmentOffset = App.Placement(App.Vector(0, 0, -110), App.Rotation())
sketch17.addGeometry(Part.Circle(App.Vector(7.5, 18, 0), App.Vector(0, 0, 1), 1.5), False)
sketch17.addConstraint([
    Sketcher.Constraint("Diameter", 0, 3.0),
    Sketcher.Constraint("DistanceY", -1, 1, 0, 3, 18.0),
    Sketcher.Constraint("DistanceX", -1, 1, 0, 3, 7.5),
])
sketch17.setExpression("Constraints[0]", "Params.sketch17_diameter")
pocket9 = body.newObject("PartDesign::Pocket", "Pocket008")
pocket9.Profile = sketch17
pocket9.Type = "UpToFirst"
pocket9.Reversed = True

# Sketch on XZ plane
sketch18 = body.newObject("Sketcher::SketchObject", "Sketch017")
sketch18.AttachmentSupport = (doc.getObject("XZ_Plane"), [""])
sketch18.MapMode = "FlatFace"
sketch18.AttachmentOffset = App.Placement(App.Vector(0, 0, -110), App.Rotation())
sketch18.addGeometry(Part.Circle(App.Vector(52.5, 18, 0), App.Vector(0, 0, 1), 1.5), False)
sketch18.addConstraint([
    Sketcher.Constraint("Diameter", 0, 3.0),
    Sketcher.Constraint("DistanceY", -1, 1, 0, 3, 18.0),
    Sketcher.Constraint("DistanceX", -1, 1, 0, 3, 52.5),
])
sketch18.setExpression("Constraints[0]", "Params.sketch18_diameter")
pocket10 = body.newObject("PartDesign::Pocket", "Pocket009")
pocket10.Profile = sketch18
pocket10.Type = "UpToFirst"
pocket10.Reversed = True

# Sketch on XY plane
sketch19 = body.newObject("Sketcher::SketchObject", "Sketch018")
sketch19.AttachmentSupport = (doc.getObject("XY_Plane"), [""])
sketch19.MapMode = "FlatFace"
sketch19.AttachmentOffset = App.Placement(App.Vector(0, 0, 3), App.Rotation())
add_polygon(sketch19, [(-35, 72.5), (-35, 27.5), (15, 27.5), (15, 72.5)])  # lines 0-3
sketch19.addConstraint([
    Sketcher.Constraint("Vertical", 0),
    Sketcher.Constraint("Horizontal", 1),
    Sketcher.Constraint("Vertical", 2),
    Sketcher.Constraint("Horizontal", 3),
    Sketcher.Constraint("DistanceX", 1, 1, 1, 2, 50.0),
    Sketcher.Constraint("DistanceY", 0, 2, 0, 1, 45.0),
    Sketcher.Constraint("DistanceX", 0, 2, -1, 1, 35.0),
    Sketcher.Constraint("DistanceY", -1, 1, 0, 2, 27.5),
])
sketch19.setExpression("Constraints[8]", "Params.sketch19_width")
sketch19.setExpression("Constraints[9]", "Params.sketch19_height")
pocket11 = body.newObject("PartDesign::Pocket", "Pocket010")
pocket11.Profile = sketch19
pocket11.Type = "UpToFirst"

# Sketch on XY plane
sketch20 = body.newObject("Sketcher::SketchObject", "Sketch019")
sketch20.AttachmentSupport = (doc.getObject("XY_Plane"), [""])
sketch20.MapMode = "FlatFace"
sketch20.AttachmentOffset = App.Placement(App.Vector(0, 0, 3), App.Rotation())
add_polygon(sketch20, [(45, 72.5), (45, 27.5), (60, 27.5), (60, 72.5)])  # lines 0-3
sketch20.addConstraint([
    Sketcher.Constraint("Vertical", 0),
    Sketcher.Constraint("Horizontal", 1),
    Sketcher.Constraint("Vertical", 2),
    Sketcher.Constraint("Horizontal", 3),
    Sketcher.Constraint("DistanceX", 1, 1, 1, 2, 15.0),
    Sketcher.Constraint("DistanceY", 0, 2, 0, 1, 45.0),
    Sketcher.Constraint("DistanceX", -1, 1, 0, 2, 45.0),
    Sketcher.Constraint("DistanceY", -1, 1, 0, 2, 27.5),
])
sketch20.setExpression("Constraints[8]", "Params.sketch20_width")
sketch20.setExpression("Constraints[9]", "Params.sketch20_height")
pocket12 = body.newObject("PartDesign::Pocket", "Pocket011")
pocket12.Profile = sketch20
pocket12.Type = "UpToFirst"
doc.recompute()

fillet = body.newObject("PartDesign::Fillet", "Fillet")
fillet.Base = (pocket12, edges_at(pocket12, [(15, 27.5, 1.5)]))
fillet.setExpression("Radius", "Params.fillet_radius")
doc.recompute()

fillet2 = body.newObject("PartDesign::Fillet", "Fillet001")
fillet2.Base = (fillet, edges_at(fillet, [(15, 72.5, 1.5)]))
fillet2.setExpression("Radius", "Params.fillet2_radius")
doc.recompute()

fillet3 = body.newObject("PartDesign::Fillet", "Fillet002")
fillet3.Base = (fillet2, edges_at(fillet2, [(-35, 86.5, 1.5)]))
fillet3.setExpression("Radius", "Params.fillet3_radius")
doc.recompute()

fillet4 = body.newObject("PartDesign::Fillet", "Fillet003")
fillet4.Base = (fillet3, edges_at(fillet3, [(-35, 72.5, 1.5)]))
fillet4.setExpression("Radius", "Params.fillet4_radius")
doc.recompute()

fillet5 = body.newObject("PartDesign::Fillet", "Fillet004")
fillet5.Base = (fillet4, edges_at(fillet4, [(0, 110, 1.5)]))
fillet5.setExpression("Radius", "Params.fillet5_radius")
doc.recompute()

fillet6 = body.newObject("PartDesign::Fillet", "Fillet005")
fillet6.Base = (fillet5, edges_at(fillet5, [
    (-35, 13.5, 1.5),
    (0, 13.5, 1.5),
    (60, 110, 1.5),
    (-35, 27.5, 1.5),
    (45, 72.5, 1.5),
    (60, 72.5, 1.5),
    (60, 27.5, 1.5),
    (45, 27.5, 1.5),
    (-20, -25, 1.5),
    (-20, 0, 1.5),
    (80, 0, 1.5),
    (80, -25, 1.5),
    (60, 0, 1.5),
    (0, 0, 1.5),
]))
fillet6.setExpression("Radius", "Params.fillet6_radius")

doc.recompute()
